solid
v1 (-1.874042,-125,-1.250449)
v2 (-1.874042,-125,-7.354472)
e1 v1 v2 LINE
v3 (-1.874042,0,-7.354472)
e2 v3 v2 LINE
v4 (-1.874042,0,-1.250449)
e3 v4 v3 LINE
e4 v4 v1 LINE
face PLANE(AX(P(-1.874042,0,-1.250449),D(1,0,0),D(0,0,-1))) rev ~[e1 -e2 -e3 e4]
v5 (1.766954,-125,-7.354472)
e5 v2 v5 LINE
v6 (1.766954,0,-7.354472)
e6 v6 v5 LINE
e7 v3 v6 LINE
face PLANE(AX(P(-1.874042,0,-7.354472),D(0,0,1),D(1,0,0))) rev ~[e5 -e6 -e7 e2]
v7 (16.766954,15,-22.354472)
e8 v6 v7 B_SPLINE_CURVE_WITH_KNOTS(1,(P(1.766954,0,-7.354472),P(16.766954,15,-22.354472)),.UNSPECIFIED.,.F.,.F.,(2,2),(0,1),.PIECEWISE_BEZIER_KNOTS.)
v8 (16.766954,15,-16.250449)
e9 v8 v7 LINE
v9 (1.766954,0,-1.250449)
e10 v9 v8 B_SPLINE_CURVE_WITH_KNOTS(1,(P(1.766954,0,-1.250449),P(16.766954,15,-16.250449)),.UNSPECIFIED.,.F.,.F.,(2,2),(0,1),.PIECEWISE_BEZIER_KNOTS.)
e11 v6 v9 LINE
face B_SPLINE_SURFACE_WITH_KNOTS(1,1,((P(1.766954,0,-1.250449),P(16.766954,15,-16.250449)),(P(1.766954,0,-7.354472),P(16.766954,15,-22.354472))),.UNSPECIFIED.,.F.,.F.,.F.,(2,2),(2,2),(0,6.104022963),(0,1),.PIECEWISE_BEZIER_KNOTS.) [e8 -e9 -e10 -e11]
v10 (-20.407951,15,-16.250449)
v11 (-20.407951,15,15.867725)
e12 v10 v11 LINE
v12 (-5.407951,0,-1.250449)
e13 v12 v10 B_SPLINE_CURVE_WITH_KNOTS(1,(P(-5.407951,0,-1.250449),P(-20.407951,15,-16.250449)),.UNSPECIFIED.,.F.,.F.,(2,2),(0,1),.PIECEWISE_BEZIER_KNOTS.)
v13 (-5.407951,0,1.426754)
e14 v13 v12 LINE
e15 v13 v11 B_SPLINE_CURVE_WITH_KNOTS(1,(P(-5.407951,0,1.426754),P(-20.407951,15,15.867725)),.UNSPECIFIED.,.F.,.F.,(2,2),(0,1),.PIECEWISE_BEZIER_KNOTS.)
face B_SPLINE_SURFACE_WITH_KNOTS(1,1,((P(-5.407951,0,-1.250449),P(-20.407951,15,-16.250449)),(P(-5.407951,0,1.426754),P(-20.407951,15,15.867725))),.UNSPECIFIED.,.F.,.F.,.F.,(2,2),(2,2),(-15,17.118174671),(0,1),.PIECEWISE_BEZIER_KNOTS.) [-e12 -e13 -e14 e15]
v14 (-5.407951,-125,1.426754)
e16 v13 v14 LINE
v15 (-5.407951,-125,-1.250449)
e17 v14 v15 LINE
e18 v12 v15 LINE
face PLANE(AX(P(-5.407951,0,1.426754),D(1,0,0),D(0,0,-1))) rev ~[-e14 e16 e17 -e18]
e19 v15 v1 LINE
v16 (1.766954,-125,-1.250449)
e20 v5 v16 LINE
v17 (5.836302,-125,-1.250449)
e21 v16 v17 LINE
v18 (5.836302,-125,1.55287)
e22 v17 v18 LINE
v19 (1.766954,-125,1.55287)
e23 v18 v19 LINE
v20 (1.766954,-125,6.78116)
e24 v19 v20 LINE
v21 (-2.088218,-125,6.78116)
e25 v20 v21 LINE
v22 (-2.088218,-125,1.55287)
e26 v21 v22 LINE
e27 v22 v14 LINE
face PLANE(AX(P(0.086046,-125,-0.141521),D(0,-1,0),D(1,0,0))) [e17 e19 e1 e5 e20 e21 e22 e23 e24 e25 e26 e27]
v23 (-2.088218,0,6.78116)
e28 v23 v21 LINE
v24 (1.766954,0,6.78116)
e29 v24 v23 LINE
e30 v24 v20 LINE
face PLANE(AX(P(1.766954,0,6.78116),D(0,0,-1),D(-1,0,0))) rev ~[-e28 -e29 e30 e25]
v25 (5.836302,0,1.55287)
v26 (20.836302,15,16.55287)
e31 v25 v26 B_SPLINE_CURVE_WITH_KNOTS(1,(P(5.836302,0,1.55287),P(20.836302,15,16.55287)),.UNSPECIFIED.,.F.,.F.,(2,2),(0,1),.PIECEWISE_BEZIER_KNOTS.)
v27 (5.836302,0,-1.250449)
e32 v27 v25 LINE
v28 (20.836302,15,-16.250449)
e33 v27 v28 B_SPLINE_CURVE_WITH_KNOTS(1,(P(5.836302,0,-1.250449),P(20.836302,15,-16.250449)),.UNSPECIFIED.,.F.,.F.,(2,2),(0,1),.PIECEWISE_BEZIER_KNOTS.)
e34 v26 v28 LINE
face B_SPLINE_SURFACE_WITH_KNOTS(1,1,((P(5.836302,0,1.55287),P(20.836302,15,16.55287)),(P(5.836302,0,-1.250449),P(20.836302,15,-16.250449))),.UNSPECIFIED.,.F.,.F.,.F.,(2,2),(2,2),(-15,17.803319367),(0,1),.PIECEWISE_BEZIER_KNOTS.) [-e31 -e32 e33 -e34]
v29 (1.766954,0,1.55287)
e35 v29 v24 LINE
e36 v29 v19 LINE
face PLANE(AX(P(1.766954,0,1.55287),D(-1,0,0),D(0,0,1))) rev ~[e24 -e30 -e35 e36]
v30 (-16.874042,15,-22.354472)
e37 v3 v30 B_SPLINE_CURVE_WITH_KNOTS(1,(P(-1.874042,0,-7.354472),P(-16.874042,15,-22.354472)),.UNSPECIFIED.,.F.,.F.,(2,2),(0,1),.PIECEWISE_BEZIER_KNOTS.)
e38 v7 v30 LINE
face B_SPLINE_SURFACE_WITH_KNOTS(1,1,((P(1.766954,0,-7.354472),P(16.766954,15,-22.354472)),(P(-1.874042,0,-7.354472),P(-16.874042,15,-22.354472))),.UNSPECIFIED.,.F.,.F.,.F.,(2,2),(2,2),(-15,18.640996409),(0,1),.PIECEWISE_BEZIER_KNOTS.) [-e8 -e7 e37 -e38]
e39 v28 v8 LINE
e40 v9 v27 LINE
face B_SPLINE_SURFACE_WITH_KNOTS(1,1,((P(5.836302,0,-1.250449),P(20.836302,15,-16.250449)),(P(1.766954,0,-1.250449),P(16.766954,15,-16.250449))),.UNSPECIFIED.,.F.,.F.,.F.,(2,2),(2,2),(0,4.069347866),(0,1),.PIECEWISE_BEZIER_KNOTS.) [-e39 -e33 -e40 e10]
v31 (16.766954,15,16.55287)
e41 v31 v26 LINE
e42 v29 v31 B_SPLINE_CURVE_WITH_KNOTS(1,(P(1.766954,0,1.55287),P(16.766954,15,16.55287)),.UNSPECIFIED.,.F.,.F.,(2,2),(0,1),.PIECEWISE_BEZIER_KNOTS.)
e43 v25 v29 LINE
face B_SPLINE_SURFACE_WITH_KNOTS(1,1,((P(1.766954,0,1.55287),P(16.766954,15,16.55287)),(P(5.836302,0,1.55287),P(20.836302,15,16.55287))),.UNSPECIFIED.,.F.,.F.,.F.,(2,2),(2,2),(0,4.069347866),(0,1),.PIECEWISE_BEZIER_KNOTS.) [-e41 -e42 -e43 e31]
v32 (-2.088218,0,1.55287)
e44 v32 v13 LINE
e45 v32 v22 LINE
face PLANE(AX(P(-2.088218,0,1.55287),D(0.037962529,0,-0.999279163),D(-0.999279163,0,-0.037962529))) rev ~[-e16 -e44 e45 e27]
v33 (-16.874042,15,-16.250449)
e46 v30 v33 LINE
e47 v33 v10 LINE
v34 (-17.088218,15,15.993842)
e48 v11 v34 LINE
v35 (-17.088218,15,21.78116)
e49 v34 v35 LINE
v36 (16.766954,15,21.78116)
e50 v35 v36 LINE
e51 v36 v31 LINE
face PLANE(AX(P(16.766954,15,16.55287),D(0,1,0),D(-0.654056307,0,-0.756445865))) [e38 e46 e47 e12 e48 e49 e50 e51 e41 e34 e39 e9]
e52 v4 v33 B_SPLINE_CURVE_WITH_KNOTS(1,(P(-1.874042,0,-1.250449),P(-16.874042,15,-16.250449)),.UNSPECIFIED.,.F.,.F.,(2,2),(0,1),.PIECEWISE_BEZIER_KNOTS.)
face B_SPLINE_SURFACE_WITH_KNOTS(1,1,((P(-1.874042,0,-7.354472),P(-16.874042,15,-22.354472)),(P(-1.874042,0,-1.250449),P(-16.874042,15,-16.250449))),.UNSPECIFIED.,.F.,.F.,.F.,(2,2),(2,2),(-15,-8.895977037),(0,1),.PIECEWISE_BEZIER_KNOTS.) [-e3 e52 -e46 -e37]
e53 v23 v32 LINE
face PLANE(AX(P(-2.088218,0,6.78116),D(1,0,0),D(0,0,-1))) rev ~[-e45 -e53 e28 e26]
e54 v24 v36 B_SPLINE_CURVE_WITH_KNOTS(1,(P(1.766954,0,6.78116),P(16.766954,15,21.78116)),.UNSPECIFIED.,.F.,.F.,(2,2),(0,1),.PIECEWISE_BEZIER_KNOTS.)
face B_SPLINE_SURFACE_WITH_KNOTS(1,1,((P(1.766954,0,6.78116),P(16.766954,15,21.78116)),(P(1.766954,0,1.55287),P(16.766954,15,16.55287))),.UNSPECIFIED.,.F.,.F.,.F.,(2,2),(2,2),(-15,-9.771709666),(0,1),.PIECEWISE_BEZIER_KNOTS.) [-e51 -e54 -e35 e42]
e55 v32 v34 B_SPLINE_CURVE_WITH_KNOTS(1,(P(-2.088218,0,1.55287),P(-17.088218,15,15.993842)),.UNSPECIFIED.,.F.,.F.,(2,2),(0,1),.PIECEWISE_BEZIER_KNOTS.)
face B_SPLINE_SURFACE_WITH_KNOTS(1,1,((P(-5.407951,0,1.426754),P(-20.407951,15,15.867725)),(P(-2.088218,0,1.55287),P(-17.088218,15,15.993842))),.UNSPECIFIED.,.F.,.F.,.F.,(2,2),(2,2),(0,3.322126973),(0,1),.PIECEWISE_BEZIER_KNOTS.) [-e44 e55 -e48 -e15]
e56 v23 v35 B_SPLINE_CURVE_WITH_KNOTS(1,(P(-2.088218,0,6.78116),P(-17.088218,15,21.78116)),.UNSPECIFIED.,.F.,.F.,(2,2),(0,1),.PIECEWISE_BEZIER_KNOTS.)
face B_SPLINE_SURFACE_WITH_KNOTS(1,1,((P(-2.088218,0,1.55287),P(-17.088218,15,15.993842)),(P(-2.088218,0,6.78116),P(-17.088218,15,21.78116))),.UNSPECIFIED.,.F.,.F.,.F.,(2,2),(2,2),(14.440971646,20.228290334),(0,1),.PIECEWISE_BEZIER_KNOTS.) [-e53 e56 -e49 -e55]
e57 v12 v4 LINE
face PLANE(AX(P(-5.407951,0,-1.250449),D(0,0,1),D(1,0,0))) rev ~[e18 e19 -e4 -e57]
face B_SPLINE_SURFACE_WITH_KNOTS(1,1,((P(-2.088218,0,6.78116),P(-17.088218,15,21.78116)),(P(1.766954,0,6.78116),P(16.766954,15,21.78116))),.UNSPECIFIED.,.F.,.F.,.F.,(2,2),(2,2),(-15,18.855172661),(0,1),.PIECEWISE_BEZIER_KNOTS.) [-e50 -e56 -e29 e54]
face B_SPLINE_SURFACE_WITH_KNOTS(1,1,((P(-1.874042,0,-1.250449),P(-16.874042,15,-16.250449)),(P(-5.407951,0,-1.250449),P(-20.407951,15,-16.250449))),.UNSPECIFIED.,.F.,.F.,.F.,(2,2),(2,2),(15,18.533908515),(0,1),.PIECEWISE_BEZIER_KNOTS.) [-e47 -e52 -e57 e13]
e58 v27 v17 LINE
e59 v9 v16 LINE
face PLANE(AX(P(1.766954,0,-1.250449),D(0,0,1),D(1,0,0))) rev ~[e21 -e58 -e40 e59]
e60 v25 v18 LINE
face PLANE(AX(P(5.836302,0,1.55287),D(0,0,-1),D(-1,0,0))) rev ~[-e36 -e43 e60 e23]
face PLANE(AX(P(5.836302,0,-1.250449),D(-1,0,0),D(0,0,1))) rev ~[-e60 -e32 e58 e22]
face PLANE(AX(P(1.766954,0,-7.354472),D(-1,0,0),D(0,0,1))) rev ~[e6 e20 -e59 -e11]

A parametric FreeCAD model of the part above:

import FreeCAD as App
import Part
import Sketcher

V = App.Vector
Q = App.Units.Quantity


def add_polygon(sketch, points):
    """Adds a closed chain of lines whose ends are joined by coincident constraints."""
    first, n = sketch.GeometryCount, len(points)
    for a, b in zip(points, points[1:] + points[:1]):
        sketch.addGeometry(Part.LineSegment(App.Vector(*a, 0), App.Vector(*b, 0)), False)
    for i in range(n):
        sketch.addConstraint(Sketcher.Constraint("Coincident", first + i, 2, first + (i + 1) % n, 1))

doc = App.newDocument("Part")
body = doc.addObject("PartDesign::Body", "Body")

# Sketch on XZ plane
sketch1 = body.newObject("Sketcher::SketchObject", "Sketch")
sketch1.AttachmentSupport = (doc.getObject("XZ_Plane"), [""])
sketch1.MapMode = "FlatFace"
add_polygon(sketch1, [(1.8, 6.8), (-2.1, 6.8), (-2.1, 1.6), (-5.4, 1.4), (-5.4, -1.3), (-1.9, -1.3), (-1.9, -7.4), (1.8, -7.4), (1.8, -1.3), (5.8, -1.3), (5.8, 1.6), (1.8, 1.6)])  # lines 0-11
sketch1.addConstraint([
    Sketcher.Constraint("Horizontal", 0),
    Sketcher.Constraint("Vertical", 1),
    Sketcher.Constraint("Vertical", 3),
    Sketcher.Constraint("Horizontal", 4),
    Sketcher.Constraint("Vertical", 5),
    Sketcher.Constraint("Horizontal", 6),
    Sketcher.Constraint("Vertical", 7),
    Sketcher.Constraint("Horizontal", 8),
    Sketcher.Constraint("Vertical", 9),
    Sketcher.Constraint("Horizontal", 10),
    Sketcher.Constraint("Vertical", 11),
    Sketcher.Constraint("Horizontal", 4, 2, 7, 2),
    Sketcher.Constraint("Horizontal", 1, 2, 9, 2),
    Sketcher.Constraint("Vertical", 7, 2, 10, 2),
    Sketcher.Constraint("DistanceX", 4, 1, 4, 2, Q("3.533909 mm")),
    Sketcher.Constraint("DistanceY", 1, 2, 1, 1, Q("5.22829 mm")),
    Sketcher.Constraint("DistanceY", 9, 1, 9, 2, Q("2.803319 mm")),
    Sketcher.Constraint("DistanceX", 0, 2, 0, 1, Q("3.855173 mm")),
    Sketcher.Constraint("DistanceX", 6, 1, 6, 2, Q("3.640996 mm")),
    Sketcher.Constraint("DistanceX", 8, 1, 8, 2, Q("4.069348 mm")),
    Sketcher.Constraint("DistanceY", 3, 2, 3, 1, Q("2.677203 mm")),
    Sketcher.Constraint("DistanceY", 5, 2, 5, 1, Q("6.104023 mm")),
    Sketcher.Constraint("DistanceX", 0, 2, -1, 1, Q("2.088218 mm")),
    Sketcher.Constraint("DistanceY", -1, 1, 0, 2, Q("6.78116 mm")),
])
pad1 = body.newObject("PartDesign::Pad", "Pad")
pad1.Profile = sketch1
pad1.Length = 125

# Sketch on XZ plane
sketch2 = body.newObject("Sketcher::SketchObject", "Sketch001")
sketch2.AttachmentSupport = (doc.getObject("XZ_Plane"), [""])
sketch2.MapMode = "FlatFace"
add_polygon(sketch2, [(1.8, 1.6), (5.8, 1.6), (5.8, -1.3), (1.8, -1.3), (1.8, -7.4), (-1.9, -7.4), (-1.9, -1.3), (-5.4, -1.3), (-5.4, 1.4), (-2.1, 1.6), (-2.1, 6.8), (1.8, 6.8)])  # lines 0-11
sketch2.addConstraint([
    Sketcher.Constraint("Horizontal", 0),
    Sketcher.Constraint("Vertical", 1),
    Sketcher.Constraint("Horizontal", 2),
    Sketcher.Constraint("Vertical", 3),
    Sketcher.Constraint("Horizontal", 4),
    Sketcher.Constraint("Vertical", 5),
    Sketcher.Constraint("Horizontal", 6),
    Sketcher.Constraint("Vertical", 7),
    Sketcher.Constraint("Vertical", 9),
    Sketcher.Constraint("Horizontal", 10),
    Sketcher.Constraint("Vertical", 11),
    Sketcher.Constraint("Horizontal", 2, 2, 5, 2),
    Sketcher.Constraint("Horizontal", 0, 2, 8, 2),
    Sketcher.Constraint("Vertical", 3, 2, 10, 2),
    Sketcher.Constraint("DistanceX", 6, 2, 6, 1, Q("3.533909 mm")),
    Sketcher.Constraint("DistanceY", 1, 2, 1, 1, Q("2.803319 mm")),
    Sketcher.Constraint("DistanceY", 9, 1, 9, 2, Q("5.22829 mm")),
    Sketcher.Constraint("DistanceX", 0, 1, 0, 2, Q("4.069348 mm")),
    Sketcher.Constraint("DistanceX", 4, 2, 4, 1, Q("3.640996 mm")),
    Sketcher.Constraint("DistanceX", 10, 1, 10, 2, Q("3.855173 mm")),
    Sketcher.Constraint("DistanceY", 3, 2, 3, 1, Q("6.104023 mm")),
    Sketcher.Constraint("DistanceY", 7, 1, 7, 2, Q("2.677203 mm")),
    Sketcher.Constraint("DistanceY", -1, 1, 0, 2, Q("1.55287 mm")),
    Sketcher.Constraint("DistanceX", 6, 2, -1, 1, Q("5.407951 mm")),
])
pad2 = body.newObject("PartDesign::Pad", "Pad001")
pad2.Profile = sketch2
pad2.Length = 15
pad2.Reversed = True
pad2.TaperAngle = 45

doc.recompute()
